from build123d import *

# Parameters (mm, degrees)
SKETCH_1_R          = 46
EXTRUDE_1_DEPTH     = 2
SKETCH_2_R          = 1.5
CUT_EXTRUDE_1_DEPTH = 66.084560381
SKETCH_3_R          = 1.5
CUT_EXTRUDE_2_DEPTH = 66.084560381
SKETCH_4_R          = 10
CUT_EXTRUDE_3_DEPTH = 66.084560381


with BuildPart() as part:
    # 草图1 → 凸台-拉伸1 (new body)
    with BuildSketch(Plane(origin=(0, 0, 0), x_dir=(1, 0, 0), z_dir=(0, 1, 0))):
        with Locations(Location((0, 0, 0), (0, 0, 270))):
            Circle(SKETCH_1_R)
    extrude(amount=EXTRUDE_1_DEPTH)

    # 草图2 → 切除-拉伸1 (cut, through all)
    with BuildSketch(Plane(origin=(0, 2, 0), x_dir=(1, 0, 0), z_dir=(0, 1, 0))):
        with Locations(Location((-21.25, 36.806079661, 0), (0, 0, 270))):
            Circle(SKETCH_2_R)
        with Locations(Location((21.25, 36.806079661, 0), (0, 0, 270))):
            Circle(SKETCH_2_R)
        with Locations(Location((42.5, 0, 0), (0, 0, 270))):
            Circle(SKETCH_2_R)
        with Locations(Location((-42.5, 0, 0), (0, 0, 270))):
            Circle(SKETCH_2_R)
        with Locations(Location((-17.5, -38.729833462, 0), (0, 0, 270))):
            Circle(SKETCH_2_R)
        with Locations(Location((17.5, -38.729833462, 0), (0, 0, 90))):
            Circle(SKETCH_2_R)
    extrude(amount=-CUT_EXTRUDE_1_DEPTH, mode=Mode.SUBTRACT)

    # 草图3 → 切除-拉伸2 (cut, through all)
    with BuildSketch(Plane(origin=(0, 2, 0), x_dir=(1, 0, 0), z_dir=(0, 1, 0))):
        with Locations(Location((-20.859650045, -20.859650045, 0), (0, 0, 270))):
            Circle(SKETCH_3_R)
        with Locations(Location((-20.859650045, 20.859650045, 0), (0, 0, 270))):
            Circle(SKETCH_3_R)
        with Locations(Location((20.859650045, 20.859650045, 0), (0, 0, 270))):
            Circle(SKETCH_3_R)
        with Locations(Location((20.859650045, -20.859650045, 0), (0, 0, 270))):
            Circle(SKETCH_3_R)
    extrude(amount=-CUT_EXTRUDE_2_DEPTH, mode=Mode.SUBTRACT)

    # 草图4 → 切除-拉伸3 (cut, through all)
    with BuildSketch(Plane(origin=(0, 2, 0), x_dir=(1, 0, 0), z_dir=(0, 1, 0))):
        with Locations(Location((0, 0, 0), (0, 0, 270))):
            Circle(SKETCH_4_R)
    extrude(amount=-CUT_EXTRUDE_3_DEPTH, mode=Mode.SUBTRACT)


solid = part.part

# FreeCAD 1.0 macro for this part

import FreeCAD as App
import Part
import Sketcher
Q = App.Units.Quantity

doc = App.newDocument("Part")
params = doc.addObject("Spreadsheet::Sheet", "Params")
for row, (alias, value) in enumerate([
    ("sketch1_diameter", "92 mm"),
    ("pad1_length", "2 mm"),
    ("sketch2_diameter", "3 mm"),
    ("sketch3_diameter", "3 mm"),
    ("sketch4_diameter", "20 mm"),
], start=1):
    params.set(f"A{row}", alias)
    params.set(f"B{row}", "=" + value)
    params.setAlias(f"B{row}", alias)

body = doc.addObject("PartDesign::Body", "Body")

# Sketch on XZ plane
sketch1 = body.newObject("Sketcher::SketchObject", "Sketch")
sketch1.AttachmentSupport = (doc.getObject("XZ_Plane"), [""])
sketch1.MapMode = "FlatFace"
sketch1.addGeometry(Part.Circle(App.Vector(0, 0, 0), App.Vector(0, 0, 1), 46), False)
sketch1.addConstraint(Sketcher.Constraint("Coincident", 0, 3, -1, 1))
sketch1.addConstraint(Sketcher.Constraint("Diameter", 0, Q("92 mm")))
sketch1.setExpression("Constraints[1]", "Params.sketch1_diameter")
pad1 = body.newObject("PartDesign::Pad", "Pad")
pad1.Profile = sketch1
pad1.setExpression("Length", "Params.pad1_length")
pad1.Reversed = True

# Sketch on XZ plane
sketch2 = body.newObject("Sketcher::SketchObject", "Sketch001")
sketch2.AttachmentSupport = (doc.getObject("XZ_Plane"), [""])
sketch2.MapMode = "FlatFace"
sketch2.AttachmentOffset = App.Placement(App.Vector(0, 0, -2), App.Rotation())
sketch2.addGeometry(Part.Circle(App.Vector(-21.2, -36.8, 0), App.Vector(0, 0, 1), 1.5), False)
sketch2.addGeometry(Part.Circle(App.Vector(21.2, -36.8, 0), App.Vector(0, 0, 1), 1.5), False)
sketch2.addGeometry(Part.Circle(App.Vector(42.5, 0, 0), App.Vector(0, 0, 1), 1.5), False)
sketch2.addGeometry(Part.Circle(App.Vector(-42.5, 0, 0), App.Vector(0, 0, 1), 1.5), False)
sketch2.addGeometry(Part.Circle(App.Vector(-17.5, 38.7, 0), App.Vector(0, 0, 1), 1.5), False)
sketch2.addGeometry(Part.Circle(App.Vector(17.5, 38.7, 0), App.Vector(0, 0, 1), 1.5), False)
sketch2.addConstraint(Sketcher.Constraint("Equal", 0, 1))
sketch2.addConstraint(Sketcher.Constraint("Equal", 1, 2))
sketch2.addConstraint(Sketcher.Constraint("Equal", 2, 3))
sketch2.addConstraint(Sketcher.Constraint("Equal", 3, 4))
sketch2.addConstraint(Sketcher.Constraint("Equal", 4, 5))
sketch2.addConstraint(Sketcher.Constraint("Symmetric", 2, 3, 3, 3, -1, 1))
sketch2.addConstraint(Sketcher.Constraint("Symmetric", 0, 3, 1, 3, -2))
sketch2.addConstraint(Sketcher.Constraint("Symmetric", 4, 3, 5, 3, -2))
sketch2.addConstraint(Sketcher.Constraint("PointOnObject", 2, 3, -1))
sketch2.addConstraint(Sketcher.Constraint("Diameter", 0, Q("3 mm")))
sketch2.addConstraint(Sketcher.Constraint("DistanceX", 3, 3, 2, 3, Q("85 mm")))
sketch2.addConstraint(Sketcher.Constraint("DistanceX", 3, 3, 4, 3, Q("25 mm")))
sketch2.addConstraint(Sketcher.Constraint("DistanceX", 0, 3, 1, 3, Q("42.5 mm")))
sketch2.addConstraint(Sketcher.Constraint("DistanceY", 0, 3, -1, 1, Q("36.80608 mm")))
sketch2.addConstraint(Sketcher.Constraint("DistanceY", -1, 1, 4, 3, Q("38.729833 mm")))
sketch2.setExpression("Constraints[9]", "Params.sketch2_diameter")
pocket1 = body.newObject("PartDesign::Pocket", "Pocket")
pocket1.Profile = sketch2
pocket1.Type = "ThroughAll"
pocket1.Reversed = True

# Sketch on XZ plane
sketch3 = body.newObject("Sketcher::SketchObject", "Sketch002")
sketch3.AttachmentSupport = (doc.getObject("XZ_Plane"), [""])
sketch3.MapMode = "FlatFace"
sketch3.AttachmentOffset = App.Placement(App.Vector(0, 0, -2), App.Rotation())
sketch3.addGeometry(Part.Circle(App.Vector(-20.9, 20.9, 0), App.Vector(0, 0, 1), 1.5), False)
sketch3.addGeometry(Part.Circle(App.Vector(-20.9, -20.9, 0), App.Vector(0, 0, 1), 1.5), False)
sketch3.addGeometry(Part.Circle(App.Vector(20.9, -20.9, 0), App.Vector(0, 0, 1), 1.5), False)
sketch3.addGeometry(Part.Circle(App.Vector(20.9, 20.9, 0), App.Vector(0, 0, 1), 1.5), False)
sketch3.addConstraint(Sketcher.Constraint("Equal", 0, 1))
sketch3.addConstraint(Sketcher.Constraint("Equal", 1, 2))
sketch3.addConstraint(Sketcher.Constraint("Equal", 2, 3))
sketch3.addConstraint(Sketcher.Constraint("Symmetric", 0, 3, 2, 3, -1, 1))
sketch3.addConstraint(Sketcher.Constraint("Symmetric", 1, 3, 3, 3, -1, 1))
sketch3.addConstraint(Sketcher.Constraint("Symmetric", 1, 3, 2, 3, -2))
sketch3.addConstraint(Sketcher.Constraint("Diameter", 0, Q("3 mm")))
sketch3.addConstraint(Sketcher.Constraint("DistanceY", 1, 3, 0, 3, Q("41.7193 mm")))
sketch3.addConstraint(Sketcher.Constraint("DistanceX", 1, 3, 2, 3, Q("41.7193 mm")))
sketch3.setExpression("Constraints[6]", "Params.sketch3_diameter")
pocket2 = body.newObject("PartDesign::Pocket", "Pocket001")
pocket2.Profile = sketch3
pocket2.Type = "ThroughAll"
pocket2.Reversed = True

# Sketch on XZ plane
sketch4 = body.newObject("Sketcher::SketchObject", "Sketch003")
sketch4.AttachmentSupport = (doc.getObject("XZ_Plane"), [""])
sketch4.MapMode = "FlatFace"
sketch4.AttachmentOffset = App.Placement(App.Vector(0, 0, -2), App.Rotation())
sketch4.addGeometry(Part.Circle(App.Vector(0, 0, 0), App.Vector(0, 0, 1), 10), False)
sketch4.addConstraint(Sketcher.Constraint("Coincident", 0, 3, -1, 1))
sketch4.addConstraint(Sketcher.Constraint("Diameter", 0, Q("20 mm")))
sketch4.setExpression("Constraints[1]", "Params.sketch4_diameter")
pocket3 = body.newObject("PartDesign::Pocket", "Pocket002")
pocket3.Profile = sketch4
pocket3.Type = "ThroughAll"
pocket3.Reversed = True

doc.recompute()
